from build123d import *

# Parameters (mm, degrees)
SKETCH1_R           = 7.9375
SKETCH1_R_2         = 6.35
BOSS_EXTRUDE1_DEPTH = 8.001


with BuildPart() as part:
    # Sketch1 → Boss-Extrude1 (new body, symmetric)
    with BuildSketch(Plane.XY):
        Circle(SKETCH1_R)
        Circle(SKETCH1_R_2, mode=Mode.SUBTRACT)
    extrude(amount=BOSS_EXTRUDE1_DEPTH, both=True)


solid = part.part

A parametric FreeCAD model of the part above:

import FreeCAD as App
import Part
import Sketcher
Q = App.Units.Quantity

doc = App.newDocument("Part")
params = doc.addObject("Spreadsheet::Sheet", "Params")
for row, (alias, value) in enumerate([
    ("sketch1_diameter", "0.5 in"),
    ("sketch1_diameter2", "0.625 in"),
    ("pad1_length", "0.63 in"),
], start=1):
    params.set(f"A{row}", alias)
    params.set(f"B{row}", "=" + value)
    params.setAlias(f"B{row}", alias)

body = doc.addObject("PartDesign::Body", "Body")

sketch1 = body.newObject("Sketcher::SketchObject", "Sketch")
sketch1.AttachmentSupport = (doc.getObject("XY_Plane"), [""])
sketch1.MapMode = "FlatFace"
sketch1.addGeometry([
    Part.Circle(App.Vector(0, 0, 0), App.Vector(0, 0, 1), 7.9375),
    Part.Circle(App.Vector(0, 0, 0), App.Vector(0, 0, 1), 6.35),
], False)
sketch1.addConstraint([
    Sketcher.Constraint("Coincident", 0, 3, -1, 1),
    Sketcher.Constraint("Coincident", 1, 3, -1, 1),
    Sketcher.Constraint("Diameter", 1, Q("0.5 in")),
    Sketcher.Constraint("Diameter", 0, Q("0.625 in")),
])
sketch1.setExpression("Constraints[2]", "Params.sketch1_diameter")
sketch1.setExpression("Constraints[3]", "Params.sketch1_diameter2")
pad1 = body.newObject("PartDesign::Pad", "Pad")
pad1.Profile = sketch1
pad1.setExpression("Length", "Params.pad1_length")
pad1.Midplane = True

doc.recompute()
